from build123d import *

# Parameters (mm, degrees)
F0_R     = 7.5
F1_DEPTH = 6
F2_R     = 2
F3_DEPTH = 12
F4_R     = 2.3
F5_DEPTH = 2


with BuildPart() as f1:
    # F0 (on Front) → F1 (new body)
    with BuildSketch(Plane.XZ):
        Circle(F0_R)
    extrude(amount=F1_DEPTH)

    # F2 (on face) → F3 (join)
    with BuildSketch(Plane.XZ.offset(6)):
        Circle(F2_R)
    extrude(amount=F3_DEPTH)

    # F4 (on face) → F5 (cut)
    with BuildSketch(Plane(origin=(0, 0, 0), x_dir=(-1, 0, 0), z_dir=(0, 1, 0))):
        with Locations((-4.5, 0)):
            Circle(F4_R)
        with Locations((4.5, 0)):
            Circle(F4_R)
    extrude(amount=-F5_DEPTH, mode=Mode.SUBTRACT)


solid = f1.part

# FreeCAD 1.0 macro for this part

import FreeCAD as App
import Part
import Sketcher

V = App.Vector
Q = App.Units.Quantity

doc = App.newDocument("Part")
params = doc.addObject("Spreadsheet::Sheet", "Params")
for row, (alias, value) in enumerate([
    ("sketch1_diameter", "15 mm"),
    ("pad1_length", "6 mm"),
    ("sketch2_diameter", "4 mm"),
    ("pad2_length", "12 mm"),
    ("sketch3_diameter", "4.6 mm"),
    ("pocket1_length", "2 mm"),
], start=1):
    params.set(f"A{row}", alias)
    params.set(f"B{row}", "=" + value)
    params.setAlias(f"B{row}", alias)

body = doc.addObject("PartDesign::Body", "Body")

sketch1 = body.newObject("Sketcher::SketchObject", "Sketch")
sketch1.AttachmentSupport = (doc.getObject("XZ_Plane"), [""])
sketch1.MapMode = "FlatFace"
sketch1.addGeometry(Part.Circle(V(0, 0, 0), V(0, 0, 1), 8), False)
sketch1.addConstraint([
    Sketcher.Constraint("Coincident", 0, 3, -1, 1),
    Sketcher.Constraint("Diameter", 0, Q("15 mm")),
])
sketch1.setExpression("Constraints[1]", "Params.sketch1_diameter")
pad1 = body.newObject("PartDesign::Pad", "Pad")
pad1.Profile = sketch1
pad1.setExpression("Length", "Params.pad1_length")

sketch2 = body.newObject("Sketcher::SketchObject", "Sketch001")
sketch2.AttachmentSupport = (doc.getObject("XZ_Plane"), [""])
sketch2.MapMode = "FlatFace"
sketch2.AttachmentOffset = App.Placement(V(0, 0, 6), App.Rotation())
sketch2.addGeometry(Part.Circle(V(0, 0, 0), V(0, 0, 1), 2), False)
sketch2.addConstraint([
    Sketcher.Constraint("Coincident", 0, 3, -1, 1),
    Sketcher.Constraint("Diameter", 0, Q("4 mm")),
])
sketch2.setExpression("Constraints[1]", "Params.sketch2_diameter")
pad2 = body.newObject("PartDesign::Pad", "Pad001")
pad2.Profile = sketch2
pad2.setExpression("Length", "Params.pad2_length")

sketch3 = body.newObject("Sketcher::SketchObject", "Sketch002")
sketch3.AttachmentSupport = (doc.getObject("XZ_Plane"), [""])
sketch3.MapMode = "FlatFace"
sketch3.addGeometry([
    Part.Circle(V(4.5, 0, 0), V(0, 0, 1), 2.3),
    Part.Circle(V(-4.5, 0, 0), V(0, 0, 1), 2.3),
], False)
sketch3.addConstraint([
    Sketcher.Constraint("Equal", 0, 1),
    Sketcher.Constraint("Symmetric", 0, 3, 1, 3, -1, 1),
    Sketcher.Constraint("PointOnObject", 0, 3, -1),
    Sketcher.Constraint("Diameter", 0, Q("4.6 mm")),
    Sketcher.Constraint("DistanceX", 1, 3, 0, 3, Q("9 mm")),
])
sketch3.setExpression("Constraints[3]", "Params.sketch3_diameter")
pocket1 = body.newObject("PartDesign::Pocket", "Pocket")
pocket1.Profile = sketch3
pocket1.setExpression("Length", "Params.pocket1_length")
pocket1.Reversed = True

doc.recompute()
